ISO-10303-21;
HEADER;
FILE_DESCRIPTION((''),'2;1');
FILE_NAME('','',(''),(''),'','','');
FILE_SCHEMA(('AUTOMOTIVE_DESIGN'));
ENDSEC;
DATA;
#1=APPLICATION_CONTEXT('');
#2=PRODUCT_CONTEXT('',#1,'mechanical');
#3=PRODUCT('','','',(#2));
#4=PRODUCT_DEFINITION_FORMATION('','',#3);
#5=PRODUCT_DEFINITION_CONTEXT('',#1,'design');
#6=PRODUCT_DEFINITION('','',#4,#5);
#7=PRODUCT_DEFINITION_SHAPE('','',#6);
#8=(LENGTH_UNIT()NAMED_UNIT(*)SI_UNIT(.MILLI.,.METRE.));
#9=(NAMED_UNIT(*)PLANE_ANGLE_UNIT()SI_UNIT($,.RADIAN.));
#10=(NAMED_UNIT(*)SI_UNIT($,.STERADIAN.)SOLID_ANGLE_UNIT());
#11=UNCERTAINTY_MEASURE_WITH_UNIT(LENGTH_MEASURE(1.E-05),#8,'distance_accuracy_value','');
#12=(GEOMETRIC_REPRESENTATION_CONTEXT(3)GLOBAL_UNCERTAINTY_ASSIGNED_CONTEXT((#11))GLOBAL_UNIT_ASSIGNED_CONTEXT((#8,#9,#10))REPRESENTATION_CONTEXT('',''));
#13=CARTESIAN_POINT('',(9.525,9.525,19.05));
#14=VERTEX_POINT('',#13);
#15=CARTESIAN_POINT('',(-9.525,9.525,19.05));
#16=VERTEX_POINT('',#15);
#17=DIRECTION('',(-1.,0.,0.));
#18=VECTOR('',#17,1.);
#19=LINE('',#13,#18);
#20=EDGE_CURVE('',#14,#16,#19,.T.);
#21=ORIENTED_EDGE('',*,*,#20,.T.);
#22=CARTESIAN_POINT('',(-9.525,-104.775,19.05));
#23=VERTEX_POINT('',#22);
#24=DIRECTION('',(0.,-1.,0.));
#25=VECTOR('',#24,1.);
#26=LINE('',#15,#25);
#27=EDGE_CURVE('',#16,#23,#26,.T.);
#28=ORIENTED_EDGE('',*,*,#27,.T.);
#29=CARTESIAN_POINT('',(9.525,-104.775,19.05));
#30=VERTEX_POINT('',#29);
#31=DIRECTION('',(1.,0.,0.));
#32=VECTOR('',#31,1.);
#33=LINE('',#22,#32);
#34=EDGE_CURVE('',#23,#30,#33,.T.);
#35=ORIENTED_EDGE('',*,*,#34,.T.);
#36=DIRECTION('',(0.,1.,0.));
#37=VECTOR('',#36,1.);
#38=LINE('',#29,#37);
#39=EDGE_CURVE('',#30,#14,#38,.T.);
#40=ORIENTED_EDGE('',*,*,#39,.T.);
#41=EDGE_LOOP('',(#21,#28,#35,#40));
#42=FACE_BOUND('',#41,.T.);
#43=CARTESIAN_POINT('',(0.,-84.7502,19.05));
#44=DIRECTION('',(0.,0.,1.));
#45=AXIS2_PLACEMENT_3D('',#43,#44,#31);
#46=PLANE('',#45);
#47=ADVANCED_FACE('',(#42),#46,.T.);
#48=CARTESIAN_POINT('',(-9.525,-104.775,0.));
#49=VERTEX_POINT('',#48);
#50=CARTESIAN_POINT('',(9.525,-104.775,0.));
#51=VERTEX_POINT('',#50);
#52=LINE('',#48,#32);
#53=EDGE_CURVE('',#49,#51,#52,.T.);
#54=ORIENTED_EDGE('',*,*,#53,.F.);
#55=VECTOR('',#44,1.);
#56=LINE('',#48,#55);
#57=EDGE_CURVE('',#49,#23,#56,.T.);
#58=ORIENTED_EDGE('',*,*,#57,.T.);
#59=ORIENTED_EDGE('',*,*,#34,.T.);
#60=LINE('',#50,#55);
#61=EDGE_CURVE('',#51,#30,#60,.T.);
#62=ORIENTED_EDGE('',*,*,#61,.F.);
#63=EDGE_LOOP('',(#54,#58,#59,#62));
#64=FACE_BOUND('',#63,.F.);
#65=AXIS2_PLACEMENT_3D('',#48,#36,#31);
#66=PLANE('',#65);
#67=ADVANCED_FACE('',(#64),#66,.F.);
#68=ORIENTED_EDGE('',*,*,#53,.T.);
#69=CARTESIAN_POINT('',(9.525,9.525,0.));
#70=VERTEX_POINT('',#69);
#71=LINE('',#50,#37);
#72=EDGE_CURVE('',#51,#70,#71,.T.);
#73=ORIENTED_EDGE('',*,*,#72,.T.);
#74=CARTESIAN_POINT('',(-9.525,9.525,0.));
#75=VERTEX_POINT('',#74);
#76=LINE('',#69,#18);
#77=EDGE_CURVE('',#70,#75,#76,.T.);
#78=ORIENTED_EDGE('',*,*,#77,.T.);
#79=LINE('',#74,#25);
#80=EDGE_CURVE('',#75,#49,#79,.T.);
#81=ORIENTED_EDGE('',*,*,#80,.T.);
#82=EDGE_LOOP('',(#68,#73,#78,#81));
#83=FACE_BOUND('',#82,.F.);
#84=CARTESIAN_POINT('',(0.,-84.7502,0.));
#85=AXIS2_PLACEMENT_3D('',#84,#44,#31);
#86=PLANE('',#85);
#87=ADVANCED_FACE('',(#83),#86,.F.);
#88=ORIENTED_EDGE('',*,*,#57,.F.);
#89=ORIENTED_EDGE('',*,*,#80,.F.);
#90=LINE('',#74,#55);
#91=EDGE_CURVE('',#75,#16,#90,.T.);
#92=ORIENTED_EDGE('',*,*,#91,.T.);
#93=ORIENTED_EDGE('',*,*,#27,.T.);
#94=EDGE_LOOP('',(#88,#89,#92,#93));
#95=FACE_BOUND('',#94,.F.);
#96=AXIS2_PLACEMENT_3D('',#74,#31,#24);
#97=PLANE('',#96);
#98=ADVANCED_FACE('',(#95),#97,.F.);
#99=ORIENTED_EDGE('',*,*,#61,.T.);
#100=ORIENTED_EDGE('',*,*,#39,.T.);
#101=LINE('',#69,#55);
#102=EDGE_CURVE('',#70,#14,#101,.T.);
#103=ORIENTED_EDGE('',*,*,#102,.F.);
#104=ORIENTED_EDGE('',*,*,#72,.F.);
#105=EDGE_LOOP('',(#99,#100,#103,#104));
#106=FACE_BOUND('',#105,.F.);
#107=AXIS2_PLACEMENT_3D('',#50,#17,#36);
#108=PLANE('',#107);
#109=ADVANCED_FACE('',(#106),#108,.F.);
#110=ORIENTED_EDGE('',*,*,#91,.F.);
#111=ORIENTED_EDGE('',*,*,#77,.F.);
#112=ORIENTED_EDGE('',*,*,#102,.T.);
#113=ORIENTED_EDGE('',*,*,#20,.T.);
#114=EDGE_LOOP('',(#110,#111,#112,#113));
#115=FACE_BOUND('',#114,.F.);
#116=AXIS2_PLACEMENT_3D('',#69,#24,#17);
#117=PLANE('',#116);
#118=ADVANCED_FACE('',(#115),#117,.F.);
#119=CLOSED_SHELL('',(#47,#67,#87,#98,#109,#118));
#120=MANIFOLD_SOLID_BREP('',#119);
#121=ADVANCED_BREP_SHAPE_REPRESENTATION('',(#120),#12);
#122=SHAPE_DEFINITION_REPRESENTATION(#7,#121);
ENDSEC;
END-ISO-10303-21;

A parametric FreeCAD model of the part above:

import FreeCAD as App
import Part
import Sketcher

V = App.Vector
Q = App.Units.Quantity


def add_polygon(sketch, points):
    """Adds a closed chain of lines whose ends are joined by coincident constraints."""
    first, n = sketch.GeometryCount, len(points)
    for a, b in zip(points, points[1:] + points[:1]):
        sketch.addGeometry(Part.LineSegment(App.Vector(*a, 0), App.Vector(*b, 0)), False)
    for i in range(n):
        sketch.addConstraint(Sketcher.Constraint("Coincident", first + i, 2, first + (i + 1) % n, 1))

doc = App.newDocument("Part")
body = doc.addObject("PartDesign::Body", "Body")

# Sketch on XY plane
sketch1 = doc.addObject("Sketcher::SketchObject", "Sketch")
body.addObject(sketch1)
sketch1.AttachmentSupport = (doc.XY_Plane, [""])
sketch1.MapMode = "FlatFace"
add_polygon(sketch1, [(9.525, -104.775), (9.525, 9.525), (-9.525, 9.525), (-9.525, -104.775)])  # lines 0-3
sketch1.addConstraint(Sketcher.Constraint("Vertical", 0))
sketch1.addConstraint(Sketcher.Constraint("Horizontal", 1))
sketch1.addConstraint(Sketcher.Constraint("Vertical", 2))
sketch1.addConstraint(Sketcher.Constraint("Horizontal", 3))
sketch1.addConstraint(Sketcher.Constraint("DistanceY", 0, 1, 0, 2, Q("4.5 in")))
sketch1.addConstraint(Sketcher.Constraint("DistanceX", 1, 2, 1, 1, Q("0.75 in")))
sketch1.addConstraint(Sketcher.Constraint("DistanceX", -1, 1, 0, 2, Q("0.375 in")))
sketch1.addConstraint(Sketcher.Constraint("DistanceY", -1, 1, 0, 2, Q("0.375 in")))
pad1 = doc.addObject("PartDesign::Pad", "Pad")
body.addObject(pad1)
pad1.Profile = sketch1
pad1.Length = Q("0.75 in")

doc.recompute()
